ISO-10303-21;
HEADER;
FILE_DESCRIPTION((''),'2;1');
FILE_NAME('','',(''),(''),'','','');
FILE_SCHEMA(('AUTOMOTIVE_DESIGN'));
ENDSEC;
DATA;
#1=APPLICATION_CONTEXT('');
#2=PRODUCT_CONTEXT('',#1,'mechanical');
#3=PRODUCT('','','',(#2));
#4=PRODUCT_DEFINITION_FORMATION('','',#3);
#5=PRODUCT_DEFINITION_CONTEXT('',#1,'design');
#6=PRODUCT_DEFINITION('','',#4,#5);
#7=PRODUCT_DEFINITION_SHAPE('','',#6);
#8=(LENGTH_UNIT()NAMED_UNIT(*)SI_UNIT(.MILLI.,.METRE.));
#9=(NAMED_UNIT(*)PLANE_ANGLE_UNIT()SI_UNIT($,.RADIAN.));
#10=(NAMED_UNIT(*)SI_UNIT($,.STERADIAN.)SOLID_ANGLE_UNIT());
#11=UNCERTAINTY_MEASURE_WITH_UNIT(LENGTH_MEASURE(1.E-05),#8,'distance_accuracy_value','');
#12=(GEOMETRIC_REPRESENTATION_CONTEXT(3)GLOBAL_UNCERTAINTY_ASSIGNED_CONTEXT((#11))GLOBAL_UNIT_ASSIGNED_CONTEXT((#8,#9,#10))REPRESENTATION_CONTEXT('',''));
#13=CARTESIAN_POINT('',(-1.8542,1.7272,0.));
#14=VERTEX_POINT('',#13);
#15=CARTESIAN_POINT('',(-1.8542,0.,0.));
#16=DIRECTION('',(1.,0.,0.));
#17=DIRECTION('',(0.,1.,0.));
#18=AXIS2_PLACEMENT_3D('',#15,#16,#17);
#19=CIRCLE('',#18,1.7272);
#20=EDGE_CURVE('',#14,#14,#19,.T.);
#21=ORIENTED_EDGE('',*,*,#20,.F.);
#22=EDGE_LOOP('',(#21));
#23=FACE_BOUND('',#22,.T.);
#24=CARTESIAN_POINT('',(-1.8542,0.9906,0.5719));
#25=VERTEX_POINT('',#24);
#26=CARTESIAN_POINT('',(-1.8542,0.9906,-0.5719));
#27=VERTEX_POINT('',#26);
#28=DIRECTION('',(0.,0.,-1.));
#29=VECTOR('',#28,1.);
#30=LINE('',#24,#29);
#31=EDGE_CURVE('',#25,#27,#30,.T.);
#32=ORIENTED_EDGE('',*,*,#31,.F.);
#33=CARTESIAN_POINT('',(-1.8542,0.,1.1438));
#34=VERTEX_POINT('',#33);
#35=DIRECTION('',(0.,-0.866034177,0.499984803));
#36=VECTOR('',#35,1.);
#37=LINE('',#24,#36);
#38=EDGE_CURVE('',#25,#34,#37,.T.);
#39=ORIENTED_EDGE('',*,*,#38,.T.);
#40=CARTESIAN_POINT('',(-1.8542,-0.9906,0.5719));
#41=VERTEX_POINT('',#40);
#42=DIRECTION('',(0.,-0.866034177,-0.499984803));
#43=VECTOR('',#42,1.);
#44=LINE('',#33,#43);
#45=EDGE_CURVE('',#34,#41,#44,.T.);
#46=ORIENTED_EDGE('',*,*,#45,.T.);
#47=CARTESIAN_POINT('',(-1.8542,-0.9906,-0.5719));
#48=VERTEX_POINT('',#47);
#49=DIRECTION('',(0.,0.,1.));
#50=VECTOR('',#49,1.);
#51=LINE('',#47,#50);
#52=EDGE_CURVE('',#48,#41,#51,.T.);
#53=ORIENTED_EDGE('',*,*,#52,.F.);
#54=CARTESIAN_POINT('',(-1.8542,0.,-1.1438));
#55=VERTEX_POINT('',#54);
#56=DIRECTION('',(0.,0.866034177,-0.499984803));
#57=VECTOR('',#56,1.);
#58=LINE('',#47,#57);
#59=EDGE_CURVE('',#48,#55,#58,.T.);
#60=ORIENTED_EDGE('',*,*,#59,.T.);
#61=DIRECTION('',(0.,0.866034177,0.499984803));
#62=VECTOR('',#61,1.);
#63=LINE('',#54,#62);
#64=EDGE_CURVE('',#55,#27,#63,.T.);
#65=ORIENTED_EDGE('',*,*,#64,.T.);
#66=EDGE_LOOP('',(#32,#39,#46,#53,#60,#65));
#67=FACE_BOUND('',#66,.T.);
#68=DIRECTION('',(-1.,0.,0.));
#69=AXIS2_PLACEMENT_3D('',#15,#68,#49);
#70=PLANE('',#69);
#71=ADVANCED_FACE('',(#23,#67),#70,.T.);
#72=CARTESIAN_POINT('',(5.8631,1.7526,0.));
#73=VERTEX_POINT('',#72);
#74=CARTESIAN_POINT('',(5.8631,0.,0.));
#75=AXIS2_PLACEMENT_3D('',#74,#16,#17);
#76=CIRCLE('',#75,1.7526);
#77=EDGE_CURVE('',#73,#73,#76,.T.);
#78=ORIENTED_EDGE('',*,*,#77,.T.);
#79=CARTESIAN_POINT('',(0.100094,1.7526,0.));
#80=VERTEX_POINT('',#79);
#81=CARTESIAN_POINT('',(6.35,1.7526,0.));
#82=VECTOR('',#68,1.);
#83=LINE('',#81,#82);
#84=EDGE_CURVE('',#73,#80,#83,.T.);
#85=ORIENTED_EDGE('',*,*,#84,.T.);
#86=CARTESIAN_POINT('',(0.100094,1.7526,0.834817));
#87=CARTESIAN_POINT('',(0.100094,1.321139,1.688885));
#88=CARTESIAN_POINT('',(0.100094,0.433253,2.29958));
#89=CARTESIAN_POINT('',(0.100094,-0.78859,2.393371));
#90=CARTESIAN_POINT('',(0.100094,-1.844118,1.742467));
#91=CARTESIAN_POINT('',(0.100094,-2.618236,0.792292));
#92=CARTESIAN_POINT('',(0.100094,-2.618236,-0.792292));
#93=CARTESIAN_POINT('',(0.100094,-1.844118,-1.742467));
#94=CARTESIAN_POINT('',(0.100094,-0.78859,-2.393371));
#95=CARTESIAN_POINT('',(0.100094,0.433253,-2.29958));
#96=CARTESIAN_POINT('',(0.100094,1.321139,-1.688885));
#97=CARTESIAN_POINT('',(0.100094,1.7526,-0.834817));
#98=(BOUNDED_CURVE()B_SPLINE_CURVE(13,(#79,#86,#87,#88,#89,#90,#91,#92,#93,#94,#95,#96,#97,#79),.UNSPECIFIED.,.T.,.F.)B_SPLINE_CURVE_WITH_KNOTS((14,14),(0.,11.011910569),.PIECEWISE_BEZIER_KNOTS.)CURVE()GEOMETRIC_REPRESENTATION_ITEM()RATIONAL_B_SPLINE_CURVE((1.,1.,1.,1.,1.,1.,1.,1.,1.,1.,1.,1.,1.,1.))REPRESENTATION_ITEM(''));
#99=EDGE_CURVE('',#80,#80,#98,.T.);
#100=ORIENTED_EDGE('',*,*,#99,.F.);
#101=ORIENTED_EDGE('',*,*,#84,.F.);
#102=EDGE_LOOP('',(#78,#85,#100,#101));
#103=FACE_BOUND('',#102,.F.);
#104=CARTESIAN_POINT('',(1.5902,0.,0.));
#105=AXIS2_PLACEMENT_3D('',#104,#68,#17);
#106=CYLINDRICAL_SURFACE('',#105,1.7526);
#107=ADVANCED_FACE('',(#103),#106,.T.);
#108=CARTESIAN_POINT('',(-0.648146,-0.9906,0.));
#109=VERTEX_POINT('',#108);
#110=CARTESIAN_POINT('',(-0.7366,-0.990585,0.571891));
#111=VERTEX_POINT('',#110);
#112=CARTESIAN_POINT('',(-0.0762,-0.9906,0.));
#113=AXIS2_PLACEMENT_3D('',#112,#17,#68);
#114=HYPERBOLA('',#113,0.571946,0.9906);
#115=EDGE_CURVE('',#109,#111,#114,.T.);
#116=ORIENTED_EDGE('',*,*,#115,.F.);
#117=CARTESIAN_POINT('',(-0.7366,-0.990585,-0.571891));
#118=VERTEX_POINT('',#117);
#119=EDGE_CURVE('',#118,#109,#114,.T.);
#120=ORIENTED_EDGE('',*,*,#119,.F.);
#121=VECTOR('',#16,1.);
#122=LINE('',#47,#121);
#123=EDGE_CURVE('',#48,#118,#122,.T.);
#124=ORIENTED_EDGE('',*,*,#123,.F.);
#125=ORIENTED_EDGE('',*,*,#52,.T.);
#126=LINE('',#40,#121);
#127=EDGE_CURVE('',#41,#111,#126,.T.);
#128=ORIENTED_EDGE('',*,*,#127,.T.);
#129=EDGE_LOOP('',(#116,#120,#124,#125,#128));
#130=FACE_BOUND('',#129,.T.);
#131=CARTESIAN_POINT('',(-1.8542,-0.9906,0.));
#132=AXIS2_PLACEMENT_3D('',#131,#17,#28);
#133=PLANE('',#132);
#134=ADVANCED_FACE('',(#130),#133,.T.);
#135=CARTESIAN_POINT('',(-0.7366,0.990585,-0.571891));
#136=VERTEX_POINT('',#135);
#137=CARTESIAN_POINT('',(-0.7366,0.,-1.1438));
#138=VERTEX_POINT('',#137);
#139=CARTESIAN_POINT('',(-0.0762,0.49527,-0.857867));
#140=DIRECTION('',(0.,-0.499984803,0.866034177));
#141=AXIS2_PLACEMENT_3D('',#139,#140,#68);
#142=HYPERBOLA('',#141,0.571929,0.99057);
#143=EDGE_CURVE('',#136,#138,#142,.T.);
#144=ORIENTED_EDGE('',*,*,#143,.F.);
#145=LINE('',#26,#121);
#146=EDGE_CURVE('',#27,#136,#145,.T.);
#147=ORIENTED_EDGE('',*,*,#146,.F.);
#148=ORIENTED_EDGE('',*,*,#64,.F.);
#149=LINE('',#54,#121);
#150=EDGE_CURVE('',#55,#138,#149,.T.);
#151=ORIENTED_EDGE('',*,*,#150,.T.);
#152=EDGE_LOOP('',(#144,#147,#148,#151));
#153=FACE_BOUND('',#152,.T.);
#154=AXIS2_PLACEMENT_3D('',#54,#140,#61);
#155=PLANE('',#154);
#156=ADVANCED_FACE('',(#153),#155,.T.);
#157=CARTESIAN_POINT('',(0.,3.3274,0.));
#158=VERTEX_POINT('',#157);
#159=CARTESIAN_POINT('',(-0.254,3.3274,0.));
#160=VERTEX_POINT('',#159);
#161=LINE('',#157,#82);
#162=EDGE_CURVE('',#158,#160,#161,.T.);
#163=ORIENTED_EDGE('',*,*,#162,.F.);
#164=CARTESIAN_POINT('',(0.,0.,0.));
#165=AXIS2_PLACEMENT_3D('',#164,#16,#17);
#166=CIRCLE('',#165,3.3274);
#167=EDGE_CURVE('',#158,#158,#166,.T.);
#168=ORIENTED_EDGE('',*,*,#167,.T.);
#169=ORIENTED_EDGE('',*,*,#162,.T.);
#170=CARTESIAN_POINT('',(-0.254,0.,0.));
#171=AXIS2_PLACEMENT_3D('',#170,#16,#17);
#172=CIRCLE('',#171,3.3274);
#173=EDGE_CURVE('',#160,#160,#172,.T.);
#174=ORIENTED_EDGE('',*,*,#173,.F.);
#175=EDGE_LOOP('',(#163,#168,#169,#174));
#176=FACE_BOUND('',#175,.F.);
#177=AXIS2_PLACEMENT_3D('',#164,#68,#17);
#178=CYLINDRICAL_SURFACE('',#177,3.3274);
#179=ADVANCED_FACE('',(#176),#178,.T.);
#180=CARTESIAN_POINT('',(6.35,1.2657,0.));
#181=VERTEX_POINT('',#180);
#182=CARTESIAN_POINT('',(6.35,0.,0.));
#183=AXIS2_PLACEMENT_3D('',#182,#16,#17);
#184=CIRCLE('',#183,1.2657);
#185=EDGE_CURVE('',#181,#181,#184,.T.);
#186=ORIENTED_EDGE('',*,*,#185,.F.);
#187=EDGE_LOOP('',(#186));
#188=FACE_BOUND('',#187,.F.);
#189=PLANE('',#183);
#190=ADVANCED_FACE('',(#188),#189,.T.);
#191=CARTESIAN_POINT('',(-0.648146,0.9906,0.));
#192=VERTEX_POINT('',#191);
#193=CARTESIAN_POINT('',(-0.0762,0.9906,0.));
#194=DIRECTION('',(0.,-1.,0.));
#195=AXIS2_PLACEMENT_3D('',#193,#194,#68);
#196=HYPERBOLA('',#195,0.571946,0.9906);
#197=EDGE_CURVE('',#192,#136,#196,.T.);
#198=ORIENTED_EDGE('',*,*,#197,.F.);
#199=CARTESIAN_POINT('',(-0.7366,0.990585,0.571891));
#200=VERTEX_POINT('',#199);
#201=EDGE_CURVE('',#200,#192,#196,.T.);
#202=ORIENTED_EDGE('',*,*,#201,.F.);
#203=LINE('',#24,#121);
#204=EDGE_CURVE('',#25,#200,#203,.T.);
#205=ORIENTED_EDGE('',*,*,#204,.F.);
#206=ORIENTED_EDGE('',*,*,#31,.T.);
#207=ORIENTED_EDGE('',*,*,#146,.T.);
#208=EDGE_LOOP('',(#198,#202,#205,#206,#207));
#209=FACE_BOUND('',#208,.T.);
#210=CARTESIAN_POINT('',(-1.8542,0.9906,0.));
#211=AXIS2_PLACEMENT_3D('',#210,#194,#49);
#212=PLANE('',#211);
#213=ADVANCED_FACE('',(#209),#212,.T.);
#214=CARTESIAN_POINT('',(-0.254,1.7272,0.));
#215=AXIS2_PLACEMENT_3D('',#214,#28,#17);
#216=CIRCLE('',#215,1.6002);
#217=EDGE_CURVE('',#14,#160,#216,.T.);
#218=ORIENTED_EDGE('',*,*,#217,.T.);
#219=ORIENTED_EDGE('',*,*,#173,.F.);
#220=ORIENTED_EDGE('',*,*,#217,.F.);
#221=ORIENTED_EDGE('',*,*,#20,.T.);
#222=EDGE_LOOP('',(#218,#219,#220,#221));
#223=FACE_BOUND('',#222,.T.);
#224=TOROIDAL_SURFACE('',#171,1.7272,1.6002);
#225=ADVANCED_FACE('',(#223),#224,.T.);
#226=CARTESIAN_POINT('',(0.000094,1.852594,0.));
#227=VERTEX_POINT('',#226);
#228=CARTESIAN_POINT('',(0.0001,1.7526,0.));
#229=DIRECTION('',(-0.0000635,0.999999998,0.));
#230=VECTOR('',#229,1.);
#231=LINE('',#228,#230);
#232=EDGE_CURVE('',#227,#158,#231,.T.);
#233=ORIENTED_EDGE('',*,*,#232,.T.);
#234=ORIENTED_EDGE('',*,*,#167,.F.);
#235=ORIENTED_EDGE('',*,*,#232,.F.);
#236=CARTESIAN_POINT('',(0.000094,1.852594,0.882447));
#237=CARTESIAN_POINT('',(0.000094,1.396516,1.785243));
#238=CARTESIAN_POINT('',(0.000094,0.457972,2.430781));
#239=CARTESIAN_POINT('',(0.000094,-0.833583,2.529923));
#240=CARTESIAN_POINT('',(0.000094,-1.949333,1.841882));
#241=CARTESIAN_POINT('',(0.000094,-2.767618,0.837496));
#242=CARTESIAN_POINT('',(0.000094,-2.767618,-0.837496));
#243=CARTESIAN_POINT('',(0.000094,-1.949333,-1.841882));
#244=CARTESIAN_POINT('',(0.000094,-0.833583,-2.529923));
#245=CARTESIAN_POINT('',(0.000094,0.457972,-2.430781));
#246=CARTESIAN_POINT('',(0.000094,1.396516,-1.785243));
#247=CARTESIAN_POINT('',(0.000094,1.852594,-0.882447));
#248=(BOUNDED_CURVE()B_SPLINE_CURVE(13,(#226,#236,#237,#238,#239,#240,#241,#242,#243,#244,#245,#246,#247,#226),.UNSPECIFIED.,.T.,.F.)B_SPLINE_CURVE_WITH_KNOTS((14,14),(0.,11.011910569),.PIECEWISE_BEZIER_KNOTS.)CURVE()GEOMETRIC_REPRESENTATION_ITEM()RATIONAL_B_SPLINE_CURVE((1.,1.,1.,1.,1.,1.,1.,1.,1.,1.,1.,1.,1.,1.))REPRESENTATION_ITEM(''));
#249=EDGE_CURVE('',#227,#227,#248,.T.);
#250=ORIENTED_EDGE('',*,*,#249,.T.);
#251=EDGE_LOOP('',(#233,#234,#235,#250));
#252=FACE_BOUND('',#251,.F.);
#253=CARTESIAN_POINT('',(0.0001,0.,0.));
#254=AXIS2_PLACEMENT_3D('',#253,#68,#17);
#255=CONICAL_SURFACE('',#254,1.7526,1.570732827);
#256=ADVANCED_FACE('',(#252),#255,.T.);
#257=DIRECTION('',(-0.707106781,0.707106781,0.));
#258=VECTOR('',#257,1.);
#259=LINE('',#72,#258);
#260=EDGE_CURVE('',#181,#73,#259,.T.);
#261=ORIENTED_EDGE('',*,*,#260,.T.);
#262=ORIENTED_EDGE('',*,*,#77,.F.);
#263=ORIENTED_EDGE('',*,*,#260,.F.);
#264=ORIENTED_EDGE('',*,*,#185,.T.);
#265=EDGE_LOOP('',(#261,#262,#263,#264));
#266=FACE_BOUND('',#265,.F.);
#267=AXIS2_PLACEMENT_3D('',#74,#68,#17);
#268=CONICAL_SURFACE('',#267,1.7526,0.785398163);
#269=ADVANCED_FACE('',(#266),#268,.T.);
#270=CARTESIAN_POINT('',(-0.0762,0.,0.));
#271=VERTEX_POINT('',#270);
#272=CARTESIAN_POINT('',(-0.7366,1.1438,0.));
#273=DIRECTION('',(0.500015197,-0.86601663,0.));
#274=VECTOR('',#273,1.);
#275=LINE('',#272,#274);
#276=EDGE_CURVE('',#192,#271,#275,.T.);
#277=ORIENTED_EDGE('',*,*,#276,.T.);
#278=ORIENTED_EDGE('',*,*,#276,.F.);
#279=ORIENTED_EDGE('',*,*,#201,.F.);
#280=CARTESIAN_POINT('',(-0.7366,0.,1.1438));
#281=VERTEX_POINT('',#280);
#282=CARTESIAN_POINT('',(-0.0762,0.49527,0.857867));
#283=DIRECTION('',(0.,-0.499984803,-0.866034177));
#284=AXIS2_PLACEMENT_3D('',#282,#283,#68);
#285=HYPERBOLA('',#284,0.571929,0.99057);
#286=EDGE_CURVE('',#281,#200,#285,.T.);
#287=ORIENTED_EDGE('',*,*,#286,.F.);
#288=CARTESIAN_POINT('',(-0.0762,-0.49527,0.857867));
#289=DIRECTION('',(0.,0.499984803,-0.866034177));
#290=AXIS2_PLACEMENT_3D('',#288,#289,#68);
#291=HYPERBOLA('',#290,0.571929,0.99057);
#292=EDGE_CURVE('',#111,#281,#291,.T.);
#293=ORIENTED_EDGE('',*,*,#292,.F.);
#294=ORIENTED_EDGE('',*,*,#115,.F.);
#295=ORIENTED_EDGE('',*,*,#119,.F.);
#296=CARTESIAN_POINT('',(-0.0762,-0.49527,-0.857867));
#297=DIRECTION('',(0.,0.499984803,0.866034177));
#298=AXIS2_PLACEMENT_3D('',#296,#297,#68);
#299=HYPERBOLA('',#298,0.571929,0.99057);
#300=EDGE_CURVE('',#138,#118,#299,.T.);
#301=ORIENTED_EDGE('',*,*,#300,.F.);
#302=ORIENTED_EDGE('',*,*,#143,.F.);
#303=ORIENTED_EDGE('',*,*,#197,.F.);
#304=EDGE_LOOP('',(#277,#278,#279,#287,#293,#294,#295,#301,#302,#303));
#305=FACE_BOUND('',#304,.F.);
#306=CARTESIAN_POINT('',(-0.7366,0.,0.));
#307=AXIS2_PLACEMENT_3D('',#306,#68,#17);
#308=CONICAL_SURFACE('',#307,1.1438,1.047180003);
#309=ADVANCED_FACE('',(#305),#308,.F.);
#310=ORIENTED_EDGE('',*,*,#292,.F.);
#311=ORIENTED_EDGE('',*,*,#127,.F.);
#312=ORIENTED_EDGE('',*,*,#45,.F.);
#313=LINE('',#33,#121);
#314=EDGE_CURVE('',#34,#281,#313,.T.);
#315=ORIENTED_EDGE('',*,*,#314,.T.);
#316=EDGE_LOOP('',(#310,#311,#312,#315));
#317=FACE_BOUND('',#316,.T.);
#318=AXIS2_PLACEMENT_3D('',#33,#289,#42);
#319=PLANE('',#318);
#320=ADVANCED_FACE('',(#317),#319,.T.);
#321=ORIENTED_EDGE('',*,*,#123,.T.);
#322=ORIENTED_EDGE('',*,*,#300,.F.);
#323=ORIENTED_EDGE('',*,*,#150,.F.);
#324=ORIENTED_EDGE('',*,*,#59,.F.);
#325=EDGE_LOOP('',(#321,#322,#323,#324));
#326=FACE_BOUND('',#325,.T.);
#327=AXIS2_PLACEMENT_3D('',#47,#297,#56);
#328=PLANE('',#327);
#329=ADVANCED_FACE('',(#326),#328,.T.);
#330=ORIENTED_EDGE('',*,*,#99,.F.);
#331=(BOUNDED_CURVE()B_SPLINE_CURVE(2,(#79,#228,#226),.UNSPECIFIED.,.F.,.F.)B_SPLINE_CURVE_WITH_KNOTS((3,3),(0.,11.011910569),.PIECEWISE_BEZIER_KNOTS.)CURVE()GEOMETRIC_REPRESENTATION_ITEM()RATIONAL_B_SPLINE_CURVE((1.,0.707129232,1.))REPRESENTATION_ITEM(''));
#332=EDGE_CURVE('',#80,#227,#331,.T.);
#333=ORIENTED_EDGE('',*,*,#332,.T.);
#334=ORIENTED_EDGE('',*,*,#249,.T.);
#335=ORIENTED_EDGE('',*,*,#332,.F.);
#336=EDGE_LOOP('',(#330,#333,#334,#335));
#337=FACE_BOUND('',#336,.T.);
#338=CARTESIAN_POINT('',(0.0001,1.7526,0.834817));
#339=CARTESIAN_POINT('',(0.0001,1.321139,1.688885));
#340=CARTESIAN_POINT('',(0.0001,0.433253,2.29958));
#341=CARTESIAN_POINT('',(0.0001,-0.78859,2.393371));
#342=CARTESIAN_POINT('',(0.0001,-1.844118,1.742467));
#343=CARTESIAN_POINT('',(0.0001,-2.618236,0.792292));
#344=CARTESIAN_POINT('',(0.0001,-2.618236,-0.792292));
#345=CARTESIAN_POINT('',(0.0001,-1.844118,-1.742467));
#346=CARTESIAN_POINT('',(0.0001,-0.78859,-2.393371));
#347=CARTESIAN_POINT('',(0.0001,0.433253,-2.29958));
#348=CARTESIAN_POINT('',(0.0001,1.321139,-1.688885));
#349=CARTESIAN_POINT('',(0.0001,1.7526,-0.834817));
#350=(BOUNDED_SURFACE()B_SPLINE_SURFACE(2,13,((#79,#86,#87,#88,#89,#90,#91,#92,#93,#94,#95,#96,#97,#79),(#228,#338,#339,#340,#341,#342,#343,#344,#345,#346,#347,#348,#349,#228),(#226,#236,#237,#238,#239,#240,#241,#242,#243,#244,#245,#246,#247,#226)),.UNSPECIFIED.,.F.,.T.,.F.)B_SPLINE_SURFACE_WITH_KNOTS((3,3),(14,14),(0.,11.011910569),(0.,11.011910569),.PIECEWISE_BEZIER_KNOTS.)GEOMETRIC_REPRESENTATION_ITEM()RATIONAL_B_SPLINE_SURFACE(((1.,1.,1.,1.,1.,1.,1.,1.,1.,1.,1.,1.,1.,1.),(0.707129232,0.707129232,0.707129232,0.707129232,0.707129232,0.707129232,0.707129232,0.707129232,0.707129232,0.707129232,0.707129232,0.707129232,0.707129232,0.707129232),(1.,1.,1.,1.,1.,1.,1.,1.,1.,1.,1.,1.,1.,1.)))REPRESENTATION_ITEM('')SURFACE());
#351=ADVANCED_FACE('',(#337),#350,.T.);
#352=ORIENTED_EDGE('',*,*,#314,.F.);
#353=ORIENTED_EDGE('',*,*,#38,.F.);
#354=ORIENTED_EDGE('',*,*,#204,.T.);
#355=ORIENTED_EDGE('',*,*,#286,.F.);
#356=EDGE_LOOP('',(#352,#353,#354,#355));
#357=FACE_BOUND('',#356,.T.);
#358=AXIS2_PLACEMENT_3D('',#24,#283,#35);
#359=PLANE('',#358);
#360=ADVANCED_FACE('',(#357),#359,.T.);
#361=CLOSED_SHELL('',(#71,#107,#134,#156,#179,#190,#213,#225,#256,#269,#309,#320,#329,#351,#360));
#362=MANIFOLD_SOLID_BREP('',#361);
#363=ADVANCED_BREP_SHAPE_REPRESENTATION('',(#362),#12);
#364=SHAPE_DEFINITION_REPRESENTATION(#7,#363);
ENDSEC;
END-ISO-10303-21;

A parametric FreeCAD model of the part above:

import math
import FreeCAD as App
import Part
import Sketcher

V = App.Vector
Q = App.Units.Quantity


def edges_at(feature, points):
    """Names of the edges that pass closest to the given points."""
    edges = feature.Shape.Edges
    near = lambda p: min(range(len(edges)), key=lambda i: edges[i].distToShape(Part.Vertex(*p))[0])
    return sorted({f"Edge{near(p) + 1}" for p in points})

doc = App.newDocument("Part")
body = doc.addObject("PartDesign::Body", "Body")

sketch1 = doc.addObject("Sketcher::SketchObject", "Sketch")
body.addObject(sketch1)
sketch1.AttachmentSupport = (doc.XY_Plane, [""])
sketch1.MapMode = "FlatFace"
sketch1.addGeometry([
    Part.LineSegment(V(-0.7366, 1.1438, 0), V(-0.0762, 0, 0)),
    Part.LineSegment(V(-0.0762, 0, 0), V(6.35, 0, 0)),
    Part.LineSegment(V(6.35, 0, 0), V(6.35, 1.7526, 0)),
    Part.LineSegment(V(6.35, 1.7526, 0), V(0.0001, 1.7526, 0)),
    Part.LineSegment(V(0.0001, 1.7526, 0), V(0, 3.3274, 0)),
    Part.LineSegment(V(0, 3.3274, 0), V(-1.8542, 3.3274, 0)),
    Part.LineSegment(V(-1.8542, 3.3274, 0), V(-1.8542, 1.1438, 0)),
    Part.LineSegment(V(-1.8542, 1.1438, 0), V(-0.7366, 1.1438, 0)),
], False)
sketch1.addConstraint([
    Sketcher.Constraint("Coincident", 0, 2, 1, 1),
    Sketcher.Constraint("Coincident", 1, 2, 2, 1),
    Sketcher.Constraint("Coincident", 2, 2, 3, 1),
    Sketcher.Constraint("Coincident", 3, 2, 4, 1),
    Sketcher.Constraint("Coincident", 4, 2, 5, 1),
    Sketcher.Constraint("Coincident", 5, 2, 6, 1),
    Sketcher.Constraint("Coincident", 6, 2, 7, 1),
    Sketcher.Constraint("Coincident", 7, 2, 0, 1),
    Sketcher.Constraint("Horizontal", 1),
    Sketcher.Constraint("Vertical", 2),
    Sketcher.Constraint("Horizontal", 3),
    Sketcher.Constraint("Vertical", 4),
    Sketcher.Constraint("Horizontal", 5),
    Sketcher.Constraint("Vertical", 6),
    Sketcher.Constraint("Horizontal", 7),
    Sketcher.Constraint("PointOnObject", 0, 2, -1),
    Sketcher.Constraint("PointOnObject", 3, 2, -2),
    Sketcher.Constraint("DistanceX", 3, 2, 3, 1, Q("0.25 in")),
    Sketcher.Constraint("DistanceX", 5, 2, 5, 1, Q("0.073 in")),
    Sketcher.Constraint("DistanceX", 7, 1, 7, 2, Q("0.044 in")),
    Sketcher.Constraint("Angle", 0, Q("-59.999 deg")),
    Sketcher.Constraint("DistanceX", 1, 1, 1, 2, Q("0.253 in")),
    Sketcher.Constraint("DistanceY", 2, 1, 2, 2, Q("0.069 in")),
    Sketcher.Constraint("DistanceY", 4, 1, 4, 2, Q("0.062 in")),
])
revolution = doc.addObject("PartDesign::Revolution", "Revolution")
body.addObject(revolution)
revolution.Profile = sketch1
revolution.ReferenceAxis = (sketch1, ["H_Axis"])
revolution.Angle = 360

sketch2 = doc.addObject("Sketcher::SketchObject", "Sketch001")
body.addObject(sketch2)
sketch2.AttachmentSupport = (doc.YZ_Plane, [""])
sketch2.MapMode = "FlatFace"
sketch2.AttachmentOffset = App.Placement(V(0, 0, -0.073 * 25.4), App.Rotation())
sketch2.addGeometry([
    Part.LineSegment(V(0.9906, 0.5719, 0), V(0, 1.1438, 0)),
    Part.ArcOfCircle(Part.Circle(V(0, 0, 0), V(0, 0, 1), 1.1438), math.radians(29.998995), math.radians(90)),
    Part.ArcOfCircle(Part.Circle(V(0, 0, 0), V(0, 0, 1), 1.1438), math.radians(90), math.radians(150.001005)),
    Part.LineSegment(V(0, 1.1438, 0), V(-0.9906, 0.5719, 0)),
    Part.ArcOfCircle(Part.Circle(V(0, 0, 0), V(0, 0, 1), 1.1438), math.radians(-29.998995), math.radians(29.998995)),
    Part.LineSegment(V(0.9906, 0.5719, 0), V(0.9906, -0.5719, 0)),
    Part.LineSegment(V(-0.9906, 0.5719, 0), V(-0.9906, -0.5719, 0)),
    Part.ArcOfCircle(Part.Circle(V(0, 0, 0), V(0, 0, 1), 1.1438), math.radians(150.001005), math.radians(209.998995)),
    Part.LineSegment(V(-0.9906, -0.5719, 0), V(0, -1.1438, 0)),
    Part.ArcOfCircle(Part.Circle(V(0, 0, 0), V(0, 0, 1), 1.1438), math.radians(-150.001005), math.radians(-90)),
    Part.ArcOfCircle(Part.Circle(V(0, 0, 0), V(0, 0, 1), 1.1438), math.radians(-90), math.radians(-29.998995)),
    Part.LineSegment(V(0, -1.1438, 0), V(0.9906, -0.5719, 0)),
], False)
sketch2.addConstraint([
    Sketcher.Constraint("Coincident", 0, 1, 1, 1),
    Sketcher.Constraint("Coincident", 1, 2, 0, 2),
    Sketcher.Constraint("Coincident", 2, 1, 3, 1),
    Sketcher.Constraint("Coincident", 3, 2, 2, 2),
    Sketcher.Constraint("Coincident", 4, 1, 5, 2),
    Sketcher.Constraint("Coincident", 5, 1, 4, 2),
    Sketcher.Constraint("Coincident", 6, 1, 7, 1),
    Sketcher.Constraint("Coincident", 7, 2, 6, 2),
    Sketcher.Constraint("Coincident", 8, 1, 9, 1),
    Sketcher.Constraint("Coincident", 9, 2, 8, 2),
    Sketcher.Constraint("Coincident", 10, 1, 11, 1),
    Sketcher.Constraint("Coincident", 11, 2, 10, 2),
    Sketcher.Constraint("Vertical", 5),
    Sketcher.Constraint("Vertical", 6),
    Sketcher.Constraint("Coincident", 1, 3, -1, 1),
    Sketcher.Constraint("Coincident", 2, 3, -1, 1),
    Sketcher.Constraint("Coincident", 4, 3, -1, 1),
    Sketcher.Constraint("Coincident", 7, 3, -1, 1),
    Sketcher.Constraint("Coincident", 9, 3, -1, 1),
    Sketcher.Constraint("Coincident", 10, 3, -1, 1),
    Sketcher.Constraint("Coincident", 2, 1, 1, 2),
    Sketcher.Constraint("Coincident", 5, 1, 0, 1),
    Sketcher.Constraint("Coincident", 6, 1, 3, 2),
    Sketcher.Constraint("Coincident", 8, 1, 7, 2),
    Sketcher.Constraint("Coincident", 10, 1, 9, 2),
    Sketcher.Constraint("PointOnObject", 1, 2, -2),
    Sketcher.Constraint("PointOnObject", 9, 2, -2),
    Sketcher.Constraint("Parallel", 0, 8),
    Sketcher.Constraint("Parallel", 3, 11),
    Sketcher.Constraint("Angle", 0, Q("150.001 deg")),
    Sketcher.Constraint("Radius", 1, Q("1.1438 mm")),
])
pad1 = doc.addObject("PartDesign::Pad", "Pad")
body.addObject(pad1)
pad1.Profile = sketch2
pad1.Type = "UpToFirst"
doc.recompute()

fillet = doc.addObject("PartDesign::Fillet", "Fillet")
body.addObject(fillet)
fillet.Base = (pad1, edges_at(pad1, [(-1.854, -3.327, 0)]))
fillet.Radius = Q("0.063 in")
doc.recompute()

chamfer = doc.addObject("PartDesign::Chamfer", "Chamfer")
body.addObject(chamfer)
chamfer.Base = (fillet, edges_at(fillet, [(6.35, -1.753, 0)]))
chamfer.ChamferType = "Two distances"
chamfer.Size = 0.4869
chamfer.Size2 = 0.4869
doc.recompute()

fillet2 = doc.addObject("PartDesign::Fillet", "Fillet001")
body.addObject(fillet2)
fillet2.Base = (chamfer, edges_at(chamfer, [(0, -1.753, 0)]))
fillet2.Radius = 0.1

doc.recompute()
